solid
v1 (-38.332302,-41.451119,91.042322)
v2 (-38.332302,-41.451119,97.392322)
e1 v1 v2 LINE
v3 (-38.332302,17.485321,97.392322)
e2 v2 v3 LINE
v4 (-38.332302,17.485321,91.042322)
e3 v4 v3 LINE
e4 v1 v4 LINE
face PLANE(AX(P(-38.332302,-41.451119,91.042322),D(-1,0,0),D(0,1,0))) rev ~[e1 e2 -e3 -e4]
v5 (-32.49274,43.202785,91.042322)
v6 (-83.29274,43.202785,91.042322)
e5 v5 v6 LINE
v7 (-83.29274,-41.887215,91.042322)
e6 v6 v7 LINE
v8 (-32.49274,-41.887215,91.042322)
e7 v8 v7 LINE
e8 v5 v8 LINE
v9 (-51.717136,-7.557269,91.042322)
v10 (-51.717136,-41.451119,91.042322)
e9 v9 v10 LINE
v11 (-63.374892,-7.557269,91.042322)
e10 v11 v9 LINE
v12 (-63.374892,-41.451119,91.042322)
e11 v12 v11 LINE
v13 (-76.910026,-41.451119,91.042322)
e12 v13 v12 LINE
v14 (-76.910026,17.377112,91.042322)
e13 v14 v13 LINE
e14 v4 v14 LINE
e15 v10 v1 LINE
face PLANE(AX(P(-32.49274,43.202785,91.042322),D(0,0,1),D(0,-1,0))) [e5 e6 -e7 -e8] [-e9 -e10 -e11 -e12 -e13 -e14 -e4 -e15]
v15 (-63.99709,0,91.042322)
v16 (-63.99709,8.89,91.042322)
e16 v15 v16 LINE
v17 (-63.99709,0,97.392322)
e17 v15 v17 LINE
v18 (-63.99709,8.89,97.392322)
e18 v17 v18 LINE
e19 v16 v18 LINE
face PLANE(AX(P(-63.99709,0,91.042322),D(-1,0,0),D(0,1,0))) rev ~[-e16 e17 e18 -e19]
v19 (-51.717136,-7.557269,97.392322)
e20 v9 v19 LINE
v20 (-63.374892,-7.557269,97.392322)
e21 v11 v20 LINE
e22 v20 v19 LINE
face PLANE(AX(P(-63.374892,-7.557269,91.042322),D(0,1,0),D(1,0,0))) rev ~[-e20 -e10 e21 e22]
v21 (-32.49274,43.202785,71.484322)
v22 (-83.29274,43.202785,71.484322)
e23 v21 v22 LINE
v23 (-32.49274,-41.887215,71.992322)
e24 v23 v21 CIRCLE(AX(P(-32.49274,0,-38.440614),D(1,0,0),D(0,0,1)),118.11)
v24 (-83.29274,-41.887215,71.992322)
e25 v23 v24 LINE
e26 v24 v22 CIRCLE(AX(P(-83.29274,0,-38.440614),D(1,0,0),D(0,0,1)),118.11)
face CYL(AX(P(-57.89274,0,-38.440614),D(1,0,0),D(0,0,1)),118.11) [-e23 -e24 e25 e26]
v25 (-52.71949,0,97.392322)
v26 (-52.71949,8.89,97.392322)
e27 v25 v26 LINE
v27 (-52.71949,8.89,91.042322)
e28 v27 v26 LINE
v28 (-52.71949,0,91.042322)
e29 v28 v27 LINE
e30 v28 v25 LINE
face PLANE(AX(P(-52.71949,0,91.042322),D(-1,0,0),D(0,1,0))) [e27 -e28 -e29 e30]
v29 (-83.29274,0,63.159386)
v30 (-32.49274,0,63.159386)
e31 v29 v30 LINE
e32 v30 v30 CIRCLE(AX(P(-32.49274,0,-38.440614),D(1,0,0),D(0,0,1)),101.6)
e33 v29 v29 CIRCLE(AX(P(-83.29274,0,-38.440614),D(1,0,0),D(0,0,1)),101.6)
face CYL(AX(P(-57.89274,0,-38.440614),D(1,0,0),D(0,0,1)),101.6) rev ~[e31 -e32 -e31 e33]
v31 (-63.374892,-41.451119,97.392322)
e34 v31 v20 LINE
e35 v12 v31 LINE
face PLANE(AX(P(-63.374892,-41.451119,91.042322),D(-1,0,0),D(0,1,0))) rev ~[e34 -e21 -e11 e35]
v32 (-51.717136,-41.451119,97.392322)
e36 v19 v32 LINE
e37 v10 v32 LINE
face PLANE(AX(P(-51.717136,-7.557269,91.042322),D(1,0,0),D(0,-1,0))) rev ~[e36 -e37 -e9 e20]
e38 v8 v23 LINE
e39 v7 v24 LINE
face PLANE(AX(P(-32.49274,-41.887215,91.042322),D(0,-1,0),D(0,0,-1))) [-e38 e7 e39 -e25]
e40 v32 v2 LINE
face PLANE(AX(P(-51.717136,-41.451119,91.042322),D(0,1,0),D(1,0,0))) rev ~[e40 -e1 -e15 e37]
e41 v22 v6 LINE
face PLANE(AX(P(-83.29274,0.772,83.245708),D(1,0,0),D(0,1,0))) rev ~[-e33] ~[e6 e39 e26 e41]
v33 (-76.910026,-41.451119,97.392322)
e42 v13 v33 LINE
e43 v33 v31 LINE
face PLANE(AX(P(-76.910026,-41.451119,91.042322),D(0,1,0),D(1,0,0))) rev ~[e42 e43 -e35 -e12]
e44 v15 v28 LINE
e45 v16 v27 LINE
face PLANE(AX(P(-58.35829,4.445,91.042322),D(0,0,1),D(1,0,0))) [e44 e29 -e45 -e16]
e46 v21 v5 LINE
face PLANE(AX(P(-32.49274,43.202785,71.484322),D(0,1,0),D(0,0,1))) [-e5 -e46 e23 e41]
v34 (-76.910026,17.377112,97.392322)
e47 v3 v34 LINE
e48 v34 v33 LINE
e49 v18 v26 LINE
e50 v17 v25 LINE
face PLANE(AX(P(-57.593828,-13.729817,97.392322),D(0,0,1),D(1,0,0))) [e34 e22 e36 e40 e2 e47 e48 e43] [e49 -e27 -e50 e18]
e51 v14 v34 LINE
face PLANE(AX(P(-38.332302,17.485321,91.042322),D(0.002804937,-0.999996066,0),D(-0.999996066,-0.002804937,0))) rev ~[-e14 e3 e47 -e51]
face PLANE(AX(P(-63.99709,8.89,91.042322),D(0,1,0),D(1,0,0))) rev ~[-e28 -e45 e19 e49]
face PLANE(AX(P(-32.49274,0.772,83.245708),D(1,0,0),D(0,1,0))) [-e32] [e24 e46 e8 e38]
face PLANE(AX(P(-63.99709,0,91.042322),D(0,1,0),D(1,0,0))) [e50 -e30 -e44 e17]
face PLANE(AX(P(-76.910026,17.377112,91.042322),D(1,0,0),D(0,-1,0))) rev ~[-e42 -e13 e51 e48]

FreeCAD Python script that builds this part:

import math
import FreeCAD as App
import Part
import Sketcher

V = App.Vector
Q = App.Units.Quantity


def add_polygon(sketch, points):
    """Adds a closed chain of lines whose ends are joined by coincident constraints."""
    first, n = sketch.GeometryCount, len(points)
    for a, b in zip(points, points[1:] + points[:1]):
        sketch.addGeometry(Part.LineSegment(App.Vector(*a, 0), App.Vector(*b, 0)), False)
    for i in range(n):
        sketch.addConstraint(Sketcher.Constraint("Coincident", first + i, 2, first + (i + 1) % n, 1))

doc = App.newDocument("Part")
body = doc.addObject("PartDesign::Body", "Body")

# Sketch on XZ plane
sketch1 = doc.addObject("Sketcher::SketchObject", "Sketch")
body.addObject(sketch1)
sketch1.AttachmentSupport = (doc.XZ_Plane, [""])
sketch1.MapMode = "FlatFace"
add_polygon(sketch1, [(-83, 80), (-83, 63), (-32, 63), (-32, 80)])  # lines 0-3
sketch1.addGeometry(Part.LineSegment(V(-83, -38, 0), V(-32, -38, 0)), True)  # axis
sketch1.addConstraint(Sketcher.Constraint("Vertical", 0))
sketch1.addConstraint(Sketcher.Constraint("Horizontal", 1))
sketch1.addConstraint(Sketcher.Constraint("Vertical", 2))
sketch1.addConstraint(Sketcher.Constraint("Horizontal", 3))
sketch1.addConstraint(Sketcher.Constraint("Horizontal", 4))
sketch1.addConstraint(Sketcher.Constraint("Vertical", 3, 2, 4, 1))
sketch1.addConstraint(Sketcher.Constraint("Vertical", 2, 2, 4, 2))
sketch1.addConstraint(Sketcher.Constraint("DistanceX", 1, 1, 1, 2, Q("2 in")))
sketch1.addConstraint(Sketcher.Constraint("DistanceY", 4, 1, 0, 2, Q("4 in")))
sketch1.addConstraint(Sketcher.Constraint("DistanceY", 0, 2, 0, 1, Q("0.65 in")))
sketch1.addConstraint(Sketcher.Constraint("DistanceX", 0, 2, -1, 1, 83.29274))
sketch1.addConstraint(Sketcher.Constraint("DistanceY", -1, 1, 0, 2, 63.159386))
revolution = doc.addObject("PartDesign::Revolution", "Revolution")
body.addObject(revolution)
revolution.Profile = sketch1
revolution.ReferenceAxis = (sketch1, ["Axis0"])
revolution.Angle = 360

# Sketch on YZ plane
sketch2 = doc.addObject("Sketcher::SketchObject", "Sketch001")
body.addObject(sketch2)
sketch2.AttachmentSupport = (doc.YZ_Plane, [""])
sketch2.MapMode = "FlatFace"
sketch2.AttachmentOffset = App.Placement(V(0, 0, -32.49274), App.Rotation())
sketch2.addGeometry(Part.ArcOfCircle(Part.Circle(V(0, -38, 0), V(0, 0, 1), 118), math.radians(69), math.radians(111)), False)
sketch2.addGeometry(Part.LineSegment(V(43, 71, 0), V(43, 91, 0)), False)
sketch2.addGeometry(Part.LineSegment(V(43, 91, 0), V(-42, 91, 0)), False)
sketch2.addGeometry(Part.LineSegment(V(-42, 91, 0), V(-42, 72, 0)), False)
sketch2.addConstraint(Sketcher.Constraint("Coincident", 0, 1, 1, 1))
sketch2.addConstraint(Sketcher.Constraint("Coincident", 1, 2, 2, 1))
sketch2.addConstraint(Sketcher.Constraint("Coincident", 2, 2, 3, 1))
sketch2.addConstraint(Sketcher.Constraint("Coincident", 3, 2, 0, 2))
sketch2.addConstraint(Sketcher.Constraint("Vertical", 1))
sketch2.addConstraint(Sketcher.Constraint("Horizontal", 2))
sketch2.addConstraint(Sketcher.Constraint("Vertical", 3))
sketch2.addConstraint(Sketcher.Constraint("PointOnObject", 0, 3, -2))
sketch2.addConstraint(Sketcher.Constraint("Radius", 0, Q("4.65 in")))
sketch2.addConstraint(Sketcher.Constraint("DistanceX", 2, 2, 2, 1, Q("3.35 in")))
sketch2.addConstraint(Sketcher.Constraint("DistanceY", 1, 1, 1, 2, Q("0.77 in")))
sketch2.addConstraint(Sketcher.Constraint("DistanceY", 3, 2, 3, 1, Q("0.75 in")))
sketch2.addConstraint(Sketcher.Constraint("DistanceY", -1, 1, 0, 1, 71.484322))
pad1 = doc.addObject("PartDesign::Pad", "Pad")
body.addObject(pad1)
pad1.Profile = sketch2
pad1.Length = Q("2 in")
pad1.Reversed = True

# Sketch on XY plane
sketch3 = doc.addObject("Sketcher::SketchObject", "Sketch002")
body.addObject(sketch3)
sketch3.AttachmentSupport = (doc.XY_Plane, [""])
sketch3.MapMode = "FlatFace"
sketch3.AttachmentOffset = App.Placement(V(0, 0, 91.042322), App.Rotation())
add_polygon(sketch3, [(-38, 17), (-77, 17), (-77, -41), (-63, -41), (-63, -8), (-52, -8), (-52, -41), (-38, -41)])  # lines 0-7
sketch3.addConstraint(Sketcher.Constraint("Vertical", 1))
sketch3.addConstraint(Sketcher.Constraint("Horizontal", 2))
sketch3.addConstraint(Sketcher.Constraint("Vertical", 3))
sketch3.addConstraint(Sketcher.Constraint("Horizontal", 4))
sketch3.addConstraint(Sketcher.Constraint("Vertical", 5))
sketch3.addConstraint(Sketcher.Constraint("Horizontal", 6))
sketch3.addConstraint(Sketcher.Constraint("Vertical", 7))
sketch3.addConstraint(Sketcher.Constraint("Horizontal", 2, 2, 5, 2))
sketch3.addConstraint(Sketcher.Constraint("DistanceY", 1, 2, 1, 1, 58.828231))
sketch3.addConstraint(Sketcher.Constraint("DistanceY", 3, 1, 3, 2, 33.89385))
sketch3.addConstraint(Sketcher.Constraint("DistanceY", 7, 1, 7, 2, 58.936439))
sketch3.addConstraint(Sketcher.Constraint("DistanceX", 2, 1, 2, 2, 13.535134))
sketch3.addConstraint(Sketcher.Constraint("DistanceX", 4, 1, 4, 2, 11.657756))
sketch3.addConstraint(Sketcher.Constraint("DistanceX", 6, 1, 6, 2, 13.384834))
sketch3.addConstraint(Sketcher.Constraint("DistanceY", 1, 2, -1, 1, 41.451119))
sketch3.addConstraint(Sketcher.Constraint("DistanceX", 2, 2, -1, 1, 63.374892))
pad2 = doc.addObject("PartDesign::Pad", "Pad001")
body.addObject(pad2)
pad2.Profile = sketch3
pad2.Length = Q("0.25 in")

# Sketch on XY plane
sketch4 = doc.addObject("Sketcher::SketchObject", "Sketch003")
body.addObject(sketch4)
sketch4.AttachmentSupport = (doc.XY_Plane, [""])
sketch4.MapMode = "FlatFace"
sketch4.AttachmentOffset = App.Placement(V(0, 0, 91.042322), App.Rotation())
add_polygon(sketch4, [(-64, 9), (-64, 0), (-53, 0), (-53, 9)])  # lines 0-3
sketch4.addConstraint(Sketcher.Constraint("Vertical", 0))
sketch4.addConstraint(Sketcher.Constraint("Horizontal", 1))
sketch4.addConstraint(Sketcher.Constraint("Vertical", 2))
sketch4.addConstraint(Sketcher.Constraint("Horizontal", 3))
sketch4.addConstraint(Sketcher.Constraint("PointOnObject", 0, 2, -1))
sketch4.addConstraint(Sketcher.Constraint("DistanceY", 0, 2, 0, 1, Q("0.35 in")))
sketch4.addConstraint(Sketcher.Constraint("DistanceX", 1, 1, 1, 2, Q("0.444 in")))
sketch4.addConstraint(Sketcher.Constraint("DistanceX", 0, 2, -1, 1, 63.99709))
pocket1 = doc.addObject("PartDesign::Pocket", "Pocket")
body.addObject(pocket1)
pocket1.Profile = sketch4
pocket1.Length = Q("0.25 in")
pocket1.Reversed = True

doc.recompute()
